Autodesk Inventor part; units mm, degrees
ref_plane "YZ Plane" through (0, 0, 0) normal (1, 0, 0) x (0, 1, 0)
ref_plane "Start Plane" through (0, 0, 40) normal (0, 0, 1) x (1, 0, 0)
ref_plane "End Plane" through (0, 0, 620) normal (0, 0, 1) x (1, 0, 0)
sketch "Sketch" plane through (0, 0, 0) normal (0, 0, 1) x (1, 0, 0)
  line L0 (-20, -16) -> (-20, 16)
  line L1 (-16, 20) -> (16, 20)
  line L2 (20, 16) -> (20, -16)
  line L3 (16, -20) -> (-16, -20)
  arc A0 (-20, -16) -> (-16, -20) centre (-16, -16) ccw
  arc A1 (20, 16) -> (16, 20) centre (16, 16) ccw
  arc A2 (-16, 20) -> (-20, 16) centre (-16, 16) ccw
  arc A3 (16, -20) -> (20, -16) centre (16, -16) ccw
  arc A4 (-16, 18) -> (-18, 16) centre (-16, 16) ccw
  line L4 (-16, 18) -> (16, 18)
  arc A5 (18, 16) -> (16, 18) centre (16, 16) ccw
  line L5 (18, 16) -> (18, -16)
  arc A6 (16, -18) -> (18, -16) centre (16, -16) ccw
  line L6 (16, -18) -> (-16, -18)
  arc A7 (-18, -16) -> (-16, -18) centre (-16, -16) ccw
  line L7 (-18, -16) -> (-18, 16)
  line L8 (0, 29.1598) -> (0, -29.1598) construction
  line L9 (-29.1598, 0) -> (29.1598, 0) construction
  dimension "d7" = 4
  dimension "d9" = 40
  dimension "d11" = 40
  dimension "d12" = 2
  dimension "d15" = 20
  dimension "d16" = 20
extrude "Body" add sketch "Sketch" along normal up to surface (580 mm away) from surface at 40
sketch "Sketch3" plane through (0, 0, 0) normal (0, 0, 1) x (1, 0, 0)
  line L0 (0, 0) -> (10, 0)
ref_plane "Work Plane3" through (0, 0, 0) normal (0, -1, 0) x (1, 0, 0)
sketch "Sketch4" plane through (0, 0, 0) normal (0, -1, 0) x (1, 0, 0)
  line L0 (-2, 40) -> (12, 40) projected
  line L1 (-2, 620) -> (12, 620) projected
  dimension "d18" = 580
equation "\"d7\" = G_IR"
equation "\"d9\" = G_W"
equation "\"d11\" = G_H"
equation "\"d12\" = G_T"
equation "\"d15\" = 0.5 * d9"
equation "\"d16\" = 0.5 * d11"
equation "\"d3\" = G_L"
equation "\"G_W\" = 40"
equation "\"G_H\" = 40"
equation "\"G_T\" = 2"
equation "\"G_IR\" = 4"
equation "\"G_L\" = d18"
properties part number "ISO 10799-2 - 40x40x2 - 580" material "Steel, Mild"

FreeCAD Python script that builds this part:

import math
import FreeCAD as App
import Part
import Sketcher

V = App.Vector

doc = App.newDocument("Part")
body = doc.addObject("PartDesign::Body", "Body")

sketch1 = body.newObject("Sketcher::SketchObject", "Sketch")
sketch1.AttachmentSupport = (doc.getObject("XY_Plane"), [""])
sketch1.MapMode = "FlatFace"
sketch1.AttachmentOffset = App.Placement(V(0, 0, 40), App.Rotation())
sketch1.addGeometry([
    Part.LineSegment(V(-20, 16, 0), V(-20, -16, 0)),
    Part.ArcOfCircle(Part.Circle(V(-16, -16, 0), V(0, 0, 1), 4), math.radians(180), math.radians(270)),
    Part.LineSegment(V(-16, -20, 0), V(16, -20, 0)),
    Part.ArcOfCircle(Part.Circle(V(16, -16, 0), V(0, 0, 1), 4), math.radians(-90), math.radians(0)),
    Part.LineSegment(V(20, -16, 0), V(20, 16, 0)),
    Part.ArcOfCircle(Part.Circle(V(16, 16, 0), V(0, 0, 1), 4), math.radians(0), math.radians(90)),
    Part.LineSegment(V(16, 20, 0), V(-16, 20, 0)),
    Part.ArcOfCircle(Part.Circle(V(-16, 16, 0), V(0, 0, 1), 4), math.radians(90), math.radians(180)),
    Part.ArcOfCircle(Part.Circle(V(-16, 16, 0), V(0, 0, 1), 2), math.radians(90), math.radians(180)),
    Part.LineSegment(V(-16, 18, 0), V(16, 18, 0)),
    Part.ArcOfCircle(Part.Circle(V(16, 16, 0), V(0, 0, 1), 2), math.radians(0), math.radians(90)),
    Part.LineSegment(V(18, 16, 0), V(18, -16, 0)),
    Part.ArcOfCircle(Part.Circle(V(16, -16, 0), V(0, 0, 1), 2), math.radians(-90), math.radians(0)),
    Part.LineSegment(V(16, -18, 0), V(-16, -18, 0)),
    Part.ArcOfCircle(Part.Circle(V(-16, -16, 0), V(0, 0, 1), 2), math.radians(180), math.radians(270)),
    Part.LineSegment(V(-18, -16, 0), V(-18, 16, 0)),
], False)
sketch1.addConstraint([
    Sketcher.Constraint("Tangent", 0, 2, 1, 1),
    Sketcher.Constraint("Tangent", 1, 2, 2, 1),
    Sketcher.Constraint("Tangent", 2, 2, 3, 1),
    Sketcher.Constraint("Tangent", 3, 2, 4, 1),
    Sketcher.Constraint("Tangent", 4, 2, 5, 1),
    Sketcher.Constraint("Tangent", 5, 2, 6, 1),
    Sketcher.Constraint("Tangent", 6, 2, 7, 1),
    Sketcher.Constraint("Tangent", 7, 2, 0, 1),
    Sketcher.Constraint("Tangent", 8, 1, 9, 1),
    Sketcher.Constraint("Tangent", 9, 2, 10, 2),
    Sketcher.Constraint("Tangent", 10, 1, 11, 1),
    Sketcher.Constraint("Tangent", 11, 2, 12, 2),
    Sketcher.Constraint("Tangent", 12, 1, 13, 1),
    Sketcher.Constraint("Tangent", 13, 2, 14, 2),
    Sketcher.Constraint("Tangent", 14, 1, 15, 1),
    Sketcher.Constraint("Tangent", 15, 2, 8, 2),
    Sketcher.Constraint("Vertical", 0),
    Sketcher.Constraint("Horizontal", 2),
    Sketcher.Constraint("Vertical", 4),
    Sketcher.Constraint("Horizontal", 6),
    Sketcher.Constraint("Horizontal", 9),
    Sketcher.Constraint("Vertical", 11),
    Sketcher.Constraint("Horizontal", 13),
    Sketcher.Constraint("Vertical", 15),
    Sketcher.Constraint("Coincident", 8, 3, 7, 3),
    Sketcher.Constraint("Coincident", 10, 3, 5, 3),
    Sketcher.Constraint("Coincident", 12, 3, 3, 3),
    Sketcher.Constraint("Equal", 1, 3),
    Sketcher.Constraint("Equal", 3, 5),
    Sketcher.Constraint("Equal", 5, 7),
    Sketcher.Constraint("Equal", 12, 14),
    Sketcher.Constraint("Symmetric", 1, 3, 5, 3, -1, 1),
    Sketcher.Constraint("Equal", 13, 0),
    Sketcher.Constraint("Radius", 1, 4.0),
    Sketcher.Constraint("Radius", 8, 2.0),
    Sketcher.Constraint("DistanceX", 0, 2, -1, 1, 20.0),
])
pad1 = body.newObject("PartDesign::Pad", "Pad")
pad1.Profile = sketch1
pad1.Length = 580

doc.recompute()
